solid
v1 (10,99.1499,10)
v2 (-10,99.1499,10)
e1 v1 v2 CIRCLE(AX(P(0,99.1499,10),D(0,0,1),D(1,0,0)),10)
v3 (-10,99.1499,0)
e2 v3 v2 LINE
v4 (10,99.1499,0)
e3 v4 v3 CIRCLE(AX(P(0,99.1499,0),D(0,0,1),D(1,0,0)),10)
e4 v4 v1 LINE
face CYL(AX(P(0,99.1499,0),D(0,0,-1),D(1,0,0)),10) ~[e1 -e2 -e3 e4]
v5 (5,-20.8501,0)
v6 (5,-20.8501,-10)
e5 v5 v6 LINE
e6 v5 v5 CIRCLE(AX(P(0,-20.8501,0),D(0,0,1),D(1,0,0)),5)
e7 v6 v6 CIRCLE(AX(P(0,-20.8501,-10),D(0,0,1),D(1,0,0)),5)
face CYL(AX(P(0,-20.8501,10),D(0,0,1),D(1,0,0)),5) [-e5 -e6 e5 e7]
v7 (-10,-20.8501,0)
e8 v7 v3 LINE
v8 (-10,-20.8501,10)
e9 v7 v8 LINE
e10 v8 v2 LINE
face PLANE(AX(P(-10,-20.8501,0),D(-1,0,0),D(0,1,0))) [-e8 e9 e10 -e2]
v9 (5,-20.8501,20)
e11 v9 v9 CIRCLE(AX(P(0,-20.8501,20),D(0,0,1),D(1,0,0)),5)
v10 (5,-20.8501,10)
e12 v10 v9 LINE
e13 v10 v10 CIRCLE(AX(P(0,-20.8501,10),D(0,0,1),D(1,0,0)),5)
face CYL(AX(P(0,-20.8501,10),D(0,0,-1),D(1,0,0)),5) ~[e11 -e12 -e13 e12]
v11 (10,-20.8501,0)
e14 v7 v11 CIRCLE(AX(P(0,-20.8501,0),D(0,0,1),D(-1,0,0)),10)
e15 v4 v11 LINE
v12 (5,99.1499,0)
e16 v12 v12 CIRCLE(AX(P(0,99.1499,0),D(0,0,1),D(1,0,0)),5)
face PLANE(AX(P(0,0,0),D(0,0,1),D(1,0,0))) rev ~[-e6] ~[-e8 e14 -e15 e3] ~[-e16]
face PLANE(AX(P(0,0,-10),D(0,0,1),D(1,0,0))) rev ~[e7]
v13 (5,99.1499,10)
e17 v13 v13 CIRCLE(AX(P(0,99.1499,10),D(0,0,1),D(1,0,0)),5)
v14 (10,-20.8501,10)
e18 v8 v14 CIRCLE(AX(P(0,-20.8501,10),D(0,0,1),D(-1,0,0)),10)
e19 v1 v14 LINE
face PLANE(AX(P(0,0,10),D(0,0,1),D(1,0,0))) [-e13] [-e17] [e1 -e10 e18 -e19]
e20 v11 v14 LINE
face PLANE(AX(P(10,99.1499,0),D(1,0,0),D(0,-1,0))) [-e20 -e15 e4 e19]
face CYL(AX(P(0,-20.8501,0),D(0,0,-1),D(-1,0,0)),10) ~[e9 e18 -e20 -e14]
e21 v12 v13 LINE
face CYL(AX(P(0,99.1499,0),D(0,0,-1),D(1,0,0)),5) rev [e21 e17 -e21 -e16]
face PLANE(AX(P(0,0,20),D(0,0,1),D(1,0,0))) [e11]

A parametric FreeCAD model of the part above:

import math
import FreeCAD as App
import Part
import Sketcher
from FreeCAD import Vector

doc = App.newDocument("Part")
params = doc.addObject("Spreadsheet::Sheet", "Params")
for row, (alias, value) in enumerate([
    ("sketch1_diameter", "10 mm"),
    ("sketch1_radius", "10 mm"),
    ("sketch1_height", "120 mm"),
    ("pad1_length", "10 mm"),
    ("sketch2_diameter", "10 mm"),
    ("pad2_length", "10 mm"),
    ("pad2_length2", "20 mm"),
], start=1):
    params.set(f"A{row}", alias)
    params.set(f"B{row}", "=" + value)
    params.setAlias(f"B{row}", alias)

body = doc.addObject("PartDesign::Body", "Body")

# Sketch on XY plane
sketch1 = body.newObject("Sketcher::SketchObject", "Sketch")
sketch1.AttachmentSupport = (doc.getObject("XY_Plane"), [""])
sketch1.MapMode = "FlatFace"
sketch1.addGeometry([
    Part.LineSegment(Vector(10, -20.8501, 0), Vector(10, 99.1499, 0)),  # 0
    Part.ArcOfCircle(Part.Circle(Vector(0, 99.1499, 0), Vector(0, 0, 1), 10), math.radians(0), math.radians(180)),  # 1
    Part.LineSegment(Vector(-10, 99.1499, 0), Vector(-10, -20.8501, 0)),  # 2
    Part.ArcOfCircle(Part.Circle(Vector(0, -20.8501, 0), Vector(0, 0, 1), 10), math.radians(180), math.radians(360)),  # 3
    Part.Circle(Vector(0, 99.1499, 0), Vector(0, 0, 1), 5),  # 4
], False)
sketch1.addConstraint([
    Sketcher.Constraint("Tangent", 0, 2, 1, 1),
    Sketcher.Constraint("Tangent", 1, 2, 2, 1),
    Sketcher.Constraint("Tangent", 2, 2, 3, 1),
    Sketcher.Constraint("Tangent", 3, 2, 0, 1),
    Sketcher.Constraint("Vertical", 0),
    Sketcher.Constraint("Vertical", 2),
    Sketcher.Constraint("Coincident", 4, 3, 1, 3),
    Sketcher.Constraint("PointOnObject", 1, 3, -2),
    Sketcher.Constraint("Diameter", 4, 10.0),
    Sketcher.Constraint("Radius", 1, 10.0),
    Sketcher.Constraint("DistanceY", 0, 1, 0, 2, 120.0),
    Sketcher.Constraint("DistanceY", -1, 1, 1, 3, 99.15),
])
sketch1.setExpression("Constraints[8]", "Params.sketch1_diameter")
sketch1.setExpression("Constraints[9]", "Params.sketch1_radius")
sketch1.setExpression("Constraints[10]", "Params.sketch1_height")
pad1 = body.newObject("PartDesign::Pad", "Pad")
pad1.Profile = sketch1
pad1.setExpression("Length", "Params.pad1_length")

# Sketch on XY plane
sketch2 = body.newObject("Sketcher::SketchObject", "Sketch001")
sketch2.AttachmentSupport = (doc.getObject("XY_Plane"), [""])
sketch2.MapMode = "FlatFace"
sketch2.AttachmentOffset = App.Placement(Vector(0, 0, 10), App.Rotation())
sketch2.addGeometry(Part.Circle(Vector(0, -20.8501, 0), Vector(0, 0, 1), 5), False)
sketch2.addConstraint([
    Sketcher.Constraint("PointOnObject", 0, 3, -2),
    Sketcher.Constraint("Diameter", 0, 10.0),
    Sketcher.Constraint("DistanceY", 0, 3, -1, 1, 20.85),
])
sketch2.setExpression("Constraints[1]", "Params.sketch2_diameter")
pad2 = body.newObject("PartDesign::Pad", "Pad001")
pad2.Profile = sketch2
pad2.Type = "TwoLengths"
pad2.setExpression("Length", "Params.pad2_length")
pad2.setExpression("Length2", "Params.pad2_length2")

doc.recompute()
